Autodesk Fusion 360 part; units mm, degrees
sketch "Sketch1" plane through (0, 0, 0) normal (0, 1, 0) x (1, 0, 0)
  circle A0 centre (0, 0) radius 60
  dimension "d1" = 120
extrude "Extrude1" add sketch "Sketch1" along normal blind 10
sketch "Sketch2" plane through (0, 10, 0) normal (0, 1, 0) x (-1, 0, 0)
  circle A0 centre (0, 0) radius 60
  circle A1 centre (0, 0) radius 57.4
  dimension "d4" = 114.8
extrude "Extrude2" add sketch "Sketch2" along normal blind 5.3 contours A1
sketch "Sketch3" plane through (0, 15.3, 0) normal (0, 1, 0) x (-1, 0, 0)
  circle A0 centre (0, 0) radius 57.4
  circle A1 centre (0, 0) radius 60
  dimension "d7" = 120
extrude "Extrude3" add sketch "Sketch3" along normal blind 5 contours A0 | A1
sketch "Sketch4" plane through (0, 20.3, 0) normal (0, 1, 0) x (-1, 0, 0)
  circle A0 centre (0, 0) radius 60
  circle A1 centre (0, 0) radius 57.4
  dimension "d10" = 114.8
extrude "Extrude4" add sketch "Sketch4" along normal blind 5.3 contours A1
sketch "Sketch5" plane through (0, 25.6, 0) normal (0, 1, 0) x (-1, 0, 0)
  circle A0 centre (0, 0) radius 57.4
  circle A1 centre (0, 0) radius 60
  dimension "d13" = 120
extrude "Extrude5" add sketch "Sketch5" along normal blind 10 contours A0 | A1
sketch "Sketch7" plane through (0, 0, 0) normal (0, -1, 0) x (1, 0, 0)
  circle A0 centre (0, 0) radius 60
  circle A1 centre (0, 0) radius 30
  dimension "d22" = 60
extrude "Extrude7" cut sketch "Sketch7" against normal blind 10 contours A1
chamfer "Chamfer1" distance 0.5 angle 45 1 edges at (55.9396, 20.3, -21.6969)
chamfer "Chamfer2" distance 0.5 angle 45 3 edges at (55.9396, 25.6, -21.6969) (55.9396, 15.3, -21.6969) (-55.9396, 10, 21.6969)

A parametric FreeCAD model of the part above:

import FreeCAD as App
import Part
import Sketcher


def edges_at(feature, points):
    """Names of the edges that pass closest to the given points."""
    edges = feature.Shape.Edges
    near = lambda p: min(range(len(edges)), key=lambda i: edges[i].distToShape(Part.Vertex(*p))[0])
    return sorted({f"Edge{near(p) + 1}" for p in points})

doc = App.newDocument("Part")
params = doc.addObject("Spreadsheet::Sheet", "Params")
for row, (alias, value) in enumerate([
    ("sketch1_diameter", "120 mm"),
    ("pad1_length", "10 mm"),
    ("sketch2_diameter", "114.8 mm"),
    ("pad2_length", "5.3 mm"),
    ("sketch3_diameter", "120 mm"),
    ("pad3_length", "5 mm"),
    ("sketch4_diameter", "114.8 mm"),
    ("pad4_length", "5.3 mm"),
    ("sketch5_diameter", "120 mm"),
    ("pad5_length", "10 mm"),
    ("sketch6_diameter", "60 mm"),
    ("pocket1_length", "10 mm"),
    ("chamfer_size", "0.5 mm"),
    ("chamfer2_size", "0.5 mm"),
], start=1):
    params.set(f"A{row}", alias)
    params.set(f"B{row}", "=" + value)
    params.setAlias(f"B{row}", alias)

body = doc.addObject("PartDesign::Body", "Body")

# Sketch on XZ plane
sketch1 = doc.addObject("Sketcher::SketchObject", "Sketch")
body.addObject(sketch1)
sketch1.AttachmentSupport = (doc.XZ_Plane, [""])
sketch1.MapMode = "FlatFace"
sketch1.addGeometry(Part.Circle(App.Vector(0, 0, 0), App.Vector(0, 0, 1), 60), False)
sketch1.addConstraint([
    Sketcher.Constraint("Coincident", 0, 3, -1, 1),
    Sketcher.Constraint("Diameter", 0, 120.0),
])
sketch1.setExpression("Constraints[1]", "Params.sketch1_diameter")
pad1 = doc.addObject("PartDesign::Pad", "Pad")
body.addObject(pad1)
pad1.Profile = sketch1
pad1.setExpression("Length", "Params.pad1_length")
pad1.Reversed = True

# Sketch on XZ plane
sketch2 = doc.addObject("Sketcher::SketchObject", "Sketch001")
body.addObject(sketch2)
sketch2.AttachmentSupport = (doc.XZ_Plane, [""])
sketch2.MapMode = "FlatFace"
sketch2.AttachmentOffset = App.Placement(App.Vector(0, 0, -10), App.Rotation())
sketch2.addGeometry(Part.Circle(App.Vector(0, 0, 0), App.Vector(0, 0, 1), 57.4), False)
sketch2.addConstraint([
    Sketcher.Constraint("Coincident", 0, 3, -1, 1),
    Sketcher.Constraint("Diameter", 0, 114.8),
])
sketch2.setExpression("Constraints[1]", "Params.sketch2_diameter")
pad2 = doc.addObject("PartDesign::Pad", "Pad001")
body.addObject(pad2)
pad2.Profile = sketch2
pad2.setExpression("Length", "Params.pad2_length")
pad2.Reversed = True

# Sketch on XZ plane
sketch3 = doc.addObject("Sketcher::SketchObject", "Sketch002")
body.addObject(sketch3)
sketch3.AttachmentSupport = (doc.XZ_Plane, [""])
sketch3.MapMode = "FlatFace"
sketch3.AttachmentOffset = App.Placement(App.Vector(0, 0, -15.3), App.Rotation())
sketch3.addGeometry(Part.Circle(App.Vector(0, 0, 0), App.Vector(0, 0, 1), 60), False)
sketch3.addConstraint([
    Sketcher.Constraint("Coincident", 0, 3, -1, 1),
    Sketcher.Constraint("Diameter", 0, 120.0),
])
sketch3.setExpression("Constraints[1]", "Params.sketch3_diameter")
pad3 = doc.addObject("PartDesign::Pad", "Pad002")
body.addObject(pad3)
pad3.Profile = sketch3
pad3.setExpression("Length", "Params.pad3_length")
pad3.Reversed = True

# Sketch on XZ plane
sketch4 = doc.addObject("Sketcher::SketchObject", "Sketch003")
body.addObject(sketch4)
sketch4.AttachmentSupport = (doc.XZ_Plane, [""])
sketch4.MapMode = "FlatFace"
sketch4.AttachmentOffset = App.Placement(App.Vector(0, 0, -20.3), App.Rotation())
sketch4.addGeometry(Part.Circle(App.Vector(0, 0, 0), App.Vector(0, 0, 1), 57.4), False)
sketch4.addConstraint([
    Sketcher.Constraint("Coincident", 0, 3, -1, 1),
    Sketcher.Constraint("Diameter", 0, 114.8),
])
sketch4.setExpression("Constraints[1]", "Params.sketch4_diameter")
pad4 = doc.addObject("PartDesign::Pad", "Pad003")
body.addObject(pad4)
pad4.Profile = sketch4
pad4.setExpression("Length", "Params.pad4_length")
pad4.Reversed = True

# Sketch on XZ plane
sketch5 = doc.addObject("Sketcher::SketchObject", "Sketch004")
body.addObject(sketch5)
sketch5.AttachmentSupport = (doc.XZ_Plane, [""])
sketch5.MapMode = "FlatFace"
sketch5.AttachmentOffset = App.Placement(App.Vector(0, 0, -25.6), App.Rotation())
sketch5.addGeometry(Part.Circle(App.Vector(0, 0, 0), App.Vector(0, 0, 1), 60), False)
sketch5.addConstraint([
    Sketcher.Constraint("Coincident", 0, 3, -1, 1),
    Sketcher.Constraint("Diameter", 0, 120.0),
])
sketch5.setExpression("Constraints[1]", "Params.sketch5_diameter")
pad5 = doc.addObject("PartDesign::Pad", "Pad004")
body.addObject(pad5)
pad5.Profile = sketch5
pad5.setExpression("Length", "Params.pad5_length")
pad5.Reversed = True

# Sketch on XZ plane
sketch6 = doc.addObject("Sketcher::SketchObject", "Sketch005")
body.addObject(sketch6)
sketch6.AttachmentSupport = (doc.XZ_Plane, [""])
sketch6.MapMode = "FlatFace"
sketch6.addGeometry(Part.Circle(App.Vector(0, 0, 0), App.Vector(0, 0, 1), 30), False)
sketch6.addConstraint([
    Sketcher.Constraint("Coincident", 0, 3, -1, 1),
    Sketcher.Constraint("Diameter", 0, 60.0),
])
sketch6.setExpression("Constraints[1]", "Params.sketch6_diameter")
pocket1 = doc.addObject("PartDesign::Pocket", "Pocket")
body.addObject(pocket1)
pocket1.Profile = sketch6
pocket1.setExpression("Length", "Params.pocket1_length")
doc.recompute()

chamfer = doc.addObject("PartDesign::Chamfer", "Chamfer")
body.addObject(chamfer)
chamfer.Base = (pocket1, edges_at(pocket1, [(55.94, 20.3, -21.697)]))
chamfer.setExpression("Size", "Params.chamfer_size")
doc.recompute()

chamfer2 = doc.addObject("PartDesign::Chamfer", "Chamfer001")
body.addObject(chamfer2)
chamfer2.Base = (chamfer, edges_at(chamfer, [(55.94, 25.6, -21.697), (55.94, 15.3, -21.697), (-55.94, 10, 21.697)]))
chamfer2.setExpression("Size", "Params.chamfer2_size")

doc.recompute()
